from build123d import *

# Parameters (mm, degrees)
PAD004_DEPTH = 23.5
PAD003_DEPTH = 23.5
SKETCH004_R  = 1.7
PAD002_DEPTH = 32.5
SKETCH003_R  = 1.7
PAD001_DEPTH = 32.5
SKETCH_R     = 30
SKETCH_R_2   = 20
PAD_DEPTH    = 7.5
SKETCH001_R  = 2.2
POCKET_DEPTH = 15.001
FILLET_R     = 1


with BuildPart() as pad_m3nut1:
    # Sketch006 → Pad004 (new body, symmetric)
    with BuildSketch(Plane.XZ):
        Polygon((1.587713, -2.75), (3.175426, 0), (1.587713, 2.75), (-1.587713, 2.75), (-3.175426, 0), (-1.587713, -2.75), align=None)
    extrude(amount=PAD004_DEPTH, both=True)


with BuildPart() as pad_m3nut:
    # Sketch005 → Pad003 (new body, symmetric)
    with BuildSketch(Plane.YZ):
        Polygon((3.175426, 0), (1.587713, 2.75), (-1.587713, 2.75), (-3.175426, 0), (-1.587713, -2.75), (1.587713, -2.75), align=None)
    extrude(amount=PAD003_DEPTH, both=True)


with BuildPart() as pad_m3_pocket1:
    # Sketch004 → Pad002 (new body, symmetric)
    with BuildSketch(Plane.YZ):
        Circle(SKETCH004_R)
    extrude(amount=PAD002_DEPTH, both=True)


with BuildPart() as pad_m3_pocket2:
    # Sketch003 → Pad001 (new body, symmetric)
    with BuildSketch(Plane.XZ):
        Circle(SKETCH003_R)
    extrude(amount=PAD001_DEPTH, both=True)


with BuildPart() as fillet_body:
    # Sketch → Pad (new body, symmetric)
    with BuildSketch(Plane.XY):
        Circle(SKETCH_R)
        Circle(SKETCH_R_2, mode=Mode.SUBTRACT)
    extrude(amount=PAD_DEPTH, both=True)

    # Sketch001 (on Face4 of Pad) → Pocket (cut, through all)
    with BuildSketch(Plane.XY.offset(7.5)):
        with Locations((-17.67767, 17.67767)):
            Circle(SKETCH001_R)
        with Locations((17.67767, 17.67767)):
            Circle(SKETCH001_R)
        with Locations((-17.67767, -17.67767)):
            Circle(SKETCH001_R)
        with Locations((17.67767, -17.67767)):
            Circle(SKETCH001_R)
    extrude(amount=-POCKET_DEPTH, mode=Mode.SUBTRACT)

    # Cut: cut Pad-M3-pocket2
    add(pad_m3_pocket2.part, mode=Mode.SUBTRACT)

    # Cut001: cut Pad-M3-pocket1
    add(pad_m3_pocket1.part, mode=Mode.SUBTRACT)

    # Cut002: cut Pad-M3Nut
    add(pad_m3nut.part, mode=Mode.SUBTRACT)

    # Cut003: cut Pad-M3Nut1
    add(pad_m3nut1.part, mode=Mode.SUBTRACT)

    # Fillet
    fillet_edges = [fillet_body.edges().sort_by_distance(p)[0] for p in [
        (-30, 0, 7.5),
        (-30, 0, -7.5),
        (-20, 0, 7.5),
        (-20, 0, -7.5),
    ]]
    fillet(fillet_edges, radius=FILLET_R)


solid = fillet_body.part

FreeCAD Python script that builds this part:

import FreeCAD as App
import Part
import Sketcher
from FreeCAD import Vector
Q = App.Units.Quantity


def edges_at(feature, points):
    """Names of the edges that pass closest to the given points."""
    edges = feature.Shape.Edges
    near = lambda p: min(range(len(edges)), key=lambda i: edges[i].distToShape(Part.Vertex(*p))[0])
    return sorted({f"Edge{near(p) + 1}" for p in points})

doc = App.newDocument("Part")
body = doc.addObject("PartDesign::Body", "Body")

sketch1 = doc.addObject("Sketcher::SketchObject", "Sketch")
body.addObject(sketch1)
sketch1.AttachmentSupport = (doc.XZ_Plane, [""])
sketch1.MapMode = "FlatFace"
sketch1.addGeometry([
    Part.LineSegment(Vector(1.587713, -2.75, 0), Vector(3.175426, 0, 0)),
    Part.LineSegment(Vector(3.175426, 0, 0), Vector(1.587713, 2.75, 0)),
    Part.LineSegment(Vector(1.587713, 2.75, 0), Vector(-1.587713, 2.75, 0)),
    Part.LineSegment(Vector(-1.587713, 2.75, 0), Vector(-3.175426, 0, 0)),
    Part.LineSegment(Vector(-3.175426, 0, 0), Vector(-1.587713, -2.75, 0)),
    Part.LineSegment(Vector(-1.587713, -2.75, 0), Vector(1.587713, -2.75, 0)),
], False)
sketch1.addConstraint([
    Sketcher.Constraint("Coincident", 0, 2, 1, 1),
    Sketcher.Constraint("Coincident", 1, 2, 2, 1),
    Sketcher.Constraint("Coincident", 2, 2, 3, 1),
    Sketcher.Constraint("Coincident", 3, 2, 4, 1),
    Sketcher.Constraint("Coincident", 4, 2, 5, 1),
    Sketcher.Constraint("Coincident", 5, 2, 0, 1),
    Sketcher.Constraint("Horizontal", 2),
    Sketcher.Constraint("Horizontal", 5),
    Sketcher.Constraint("Symmetric", 0, 2, 3, 2, -1, 1),
    Sketcher.Constraint("Symmetric", 1, 2, 4, 2, -1, 1),
    Sketcher.Constraint("PointOnObject", 0, 2, -1),
    Sketcher.Constraint("Parallel", 0, 3),
    Sketcher.Constraint("Vertical", 2, 2, 4, 2),
    Sketcher.Constraint("Angle", 0, Q("60.000004 deg")),
    Sketcher.Constraint("DistanceY", 4, 2, 2, 2, Q("5.5 mm")),
    Sketcher.Constraint("DistanceX", 2, 2, 2, 1, Q("3.175426 mm")),
])
pad1 = doc.addObject("PartDesign::Pad", "Pad")
body.addObject(pad1)
pad1.Profile = sketch1
pad1.Length = 47
pad1.Midplane = True
body2 = doc.addObject("PartDesign::Body", "Body001")

sketch2 = doc.addObject("Sketcher::SketchObject", "Sketch001")
body2.addObject(sketch2)
sketch2.AttachmentSupport = (doc.getObject("YZ_Plane001"), [""])
sketch2.MapMode = "FlatFace"
sketch2.addGeometry([
    Part.LineSegment(Vector(3.175426, 0, 0), Vector(1.587713, 2.75, 0)),
    Part.LineSegment(Vector(1.587713, 2.75, 0), Vector(-1.587713, 2.75, 0)),
    Part.LineSegment(Vector(-1.587713, 2.75, 0), Vector(-3.175426, 0, 0)),
    Part.LineSegment(Vector(-3.175426, 0, 0), Vector(-1.587713, -2.75, 0)),
    Part.LineSegment(Vector(-1.587713, -2.75, 0), Vector(1.587713, -2.75, 0)),
    Part.LineSegment(Vector(1.587713, -2.75, 0), Vector(3.175426, 0, 0)),
], False)
sketch2.addConstraint([
    Sketcher.Constraint("Coincident", 0, 2, 1, 1),
    Sketcher.Constraint("Coincident", 1, 2, 2, 1),
    Sketcher.Constraint("Coincident", 2, 2, 3, 1),
    Sketcher.Constraint("Coincident", 3, 2, 4, 1),
    Sketcher.Constraint("Coincident", 4, 2, 5, 1),
    Sketcher.Constraint("Coincident", 5, 2, 0, 1),
    Sketcher.Constraint("Horizontal", 1),
    Sketcher.Constraint("Horizontal", 4),
    Sketcher.Constraint("Symmetric", 0, 2, 3, 2, -1, 1),
    Sketcher.Constraint("Symmetric", 2, 2, 5, 2, -1, 1),
    Sketcher.Constraint("PointOnObject", 2, 2, -1),
    Sketcher.Constraint("Parallel", 2, 5),
    Sketcher.Constraint("Vertical", 1, 2, 3, 2),
    Sketcher.Constraint("Angle", 0, Q("119.999996 deg")),
    Sketcher.Constraint("DistanceY", 3, 2, 1, 2, Q("5.5 mm")),
    Sketcher.Constraint("DistanceX", 1, 2, 1, 1, Q("3.175426 mm")),
])
pad2 = doc.addObject("PartDesign::Pad", "Pad001")
body2.addObject(pad2)
pad2.Profile = sketch2
pad2.Length = 47
pad2.Midplane = True
body3 = doc.addObject("PartDesign::Body", "Body002")

sketch3 = doc.addObject("Sketcher::SketchObject", "Sketch002")
body3.addObject(sketch3)
sketch3.AttachmentSupport = (doc.getObject("YZ_Plane002"), [""])
sketch3.MapMode = "FlatFace"
sketch3.addGeometry(Part.Circle(Vector(0, 0, 0), Vector(0, 0, 1), 1.7), False)
sketch3.addConstraint([
    Sketcher.Constraint("Coincident", 0, 3, -1, 1),
    Sketcher.Constraint("Diameter", 0, Q("3.4 mm")),
])
pad3 = doc.addObject("PartDesign::Pad", "Pad002")
body3.addObject(pad3)
pad3.Profile = sketch3
pad3.Length = 65
pad3.Midplane = True
body4 = doc.addObject("PartDesign::Body", "Body003")

sketch4 = doc.addObject("Sketcher::SketchObject", "Sketch003")
body4.addObject(sketch4)
sketch4.AttachmentSupport = (doc.getObject("XZ_Plane003"), [""])
sketch4.MapMode = "FlatFace"
sketch4.addGeometry(Part.Circle(Vector(0, 0, 0), Vector(0, 0, 1), 1.7), False)
sketch4.addConstraint([
    Sketcher.Constraint("Coincident", 0, 3, -1, 1),
    Sketcher.Constraint("Diameter", 0, Q("3.4 mm")),
])
pad4 = doc.addObject("PartDesign::Pad", "Pad003")
body4.addObject(pad4)
pad4.Profile = sketch4
pad4.Length = 65
pad4.Midplane = True
body5 = doc.addObject("PartDesign::Body", "Body004")

sketch5 = doc.addObject("Sketcher::SketchObject", "Sketch004")
body5.addObject(sketch5)
sketch5.AttachmentSupport = (doc.getObject("XY_Plane004"), [""])
sketch5.MapMode = "FlatFace"
sketch5.addGeometry([
    Part.Circle(Vector(0, 0, 0), Vector(0, 0, 1), 30),
    Part.Circle(Vector(0, 0, 0), Vector(0, 0, 1), 20),
], False)
sketch5.addConstraint([
    Sketcher.Constraint("Coincident", 0, 3, -1, 1),
    Sketcher.Constraint("Coincident", 1, 3, -1, 1),
    Sketcher.Constraint("Diameter", 0, Q("60 mm")),
    Sketcher.Constraint("Diameter", 1, Q("40 mm")),
])
pad5 = doc.addObject("PartDesign::Pad", "Pad004")
body5.addObject(pad5)
pad5.Profile = sketch5
pad5.Length = 15
pad5.Midplane = True

sketch6 = doc.addObject("Sketcher::SketchObject", "Sketch005")
body5.addObject(sketch6)
sketch6.AttachmentSupport = (doc.getObject("XY_Plane004"), [""])
sketch6.MapMode = "FlatFace"
sketch6.AttachmentOffset = App.Placement(Vector(0, 0, 7.5), App.Rotation())
sketch6.addGeometry([
    Part.Circle(Vector(-17.67767, 17.67767, 0), Vector(0, 0, 1), 2.2),
    Part.Circle(Vector(17.67767, 17.67767, 0), Vector(0, 0, 1), 2.2),
    Part.Circle(Vector(-17.67767, -17.67767, 0), Vector(0, 0, 1), 2.2),
    Part.Circle(Vector(17.67767, -17.67767, 0), Vector(0, 0, 1), 2.2),
], False)
sketch6.addConstraint([
    Sketcher.Constraint("Equal", 0, 1),
    Sketcher.Constraint("Equal", 1, 2),
    Sketcher.Constraint("Equal", 2, 3),
    Sketcher.Constraint("Symmetric", 1, 3, 2, 3, -1, 1),
    Sketcher.Constraint("Symmetric", 0, 3, 3, 3, -1, 1),
    Sketcher.Constraint("Symmetric", 0, 3, 1, 3, -2),
    Sketcher.Constraint("Diameter", 0, Q("4.4 mm")),
    Sketcher.Constraint("DistanceX", 0, 3, -1, 1, Q("17.67767 mm")),
    Sketcher.Constraint("DistanceY", -1, 1, 0, 3, Q("17.67767 mm")),
])
pocket1 = doc.addObject("PartDesign::Pocket", "Pocket")
body5.addObject(pocket1)
pocket1.Profile = sketch6
pocket1.Type = "ThroughAll"
doc.recompute()

boolean = doc.addObject("PartDesign::Boolean", "Boolean")
body5.addObject(boolean)
boolean.Type = "Cut"
boolean.addObjects([body4])
doc.recompute()

boolean2 = doc.addObject("PartDesign::Boolean", "Boolean001")
body5.addObject(boolean2)
boolean2.Type = "Cut"
boolean2.addObjects([body3])
doc.recompute()

boolean3 = doc.addObject("PartDesign::Boolean", "Boolean002")
body5.addObject(boolean3)
boolean3.Type = "Cut"
boolean3.addObjects([body2])
doc.recompute()

boolean4 = doc.addObject("PartDesign::Boolean", "Boolean003")
body5.addObject(boolean4)
boolean4.Type = "Cut"
boolean4.addObjects([body])
doc.recompute()

fillet = doc.addObject("PartDesign::Fillet", "Fillet")
body5.addObject(fillet)
fillet.Base = (boolean4, edges_at(boolean4, [
    (-30, 0, 7.5),
    (-30, 0, -7.5),
    (-20, 0, 7.5),
    (-20, 0, -7.5),
]))
fillet.Radius = 1

doc.recompute()
